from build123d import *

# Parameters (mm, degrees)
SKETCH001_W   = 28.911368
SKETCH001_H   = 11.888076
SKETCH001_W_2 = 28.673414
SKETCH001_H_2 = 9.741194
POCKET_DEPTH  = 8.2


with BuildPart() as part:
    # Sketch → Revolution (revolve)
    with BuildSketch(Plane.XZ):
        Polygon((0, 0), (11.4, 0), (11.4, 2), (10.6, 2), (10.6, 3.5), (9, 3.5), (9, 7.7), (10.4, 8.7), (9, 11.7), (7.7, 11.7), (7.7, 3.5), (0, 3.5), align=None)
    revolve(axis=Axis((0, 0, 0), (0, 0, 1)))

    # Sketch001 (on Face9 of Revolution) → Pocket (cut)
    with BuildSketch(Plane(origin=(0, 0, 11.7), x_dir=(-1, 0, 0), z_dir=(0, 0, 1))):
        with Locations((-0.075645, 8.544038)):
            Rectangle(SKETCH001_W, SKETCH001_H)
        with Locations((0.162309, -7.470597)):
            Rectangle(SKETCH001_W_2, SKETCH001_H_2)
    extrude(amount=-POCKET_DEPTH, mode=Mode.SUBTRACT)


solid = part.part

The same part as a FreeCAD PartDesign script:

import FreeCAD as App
import Part
import Sketcher

V = App.Vector
Q = App.Units.Quantity

doc = App.newDocument("Part")
body = doc.addObject("PartDesign::Body", "Body")

# Sketch on XZ plane
sketch1 = body.newObject("Sketcher::SketchObject", "Sketch")
sketch1.AttachmentSupport = (doc.getObject("XZ_Plane"), [""])
sketch1.MapMode = "FlatFace"
sketch1.addGeometry(Part.LineSegment(V(0, 0, 0), V(11.4, 0, 0)), False)
sketch1.addGeometry(Part.LineSegment(V(11.4, 0, 0), V(11.4, 2, 0)), False)
sketch1.addGeometry(Part.LineSegment(V(11.4, 2, 0), V(10.6, 2, 0)), False)
sketch1.addGeometry(Part.LineSegment(V(10.6, 2, 0), V(10.6, 3.5, 0)), False)
sketch1.addGeometry(Part.LineSegment(V(10.6, 3.5, 0), V(9, 3.5, 0)), False)
sketch1.addGeometry(Part.LineSegment(V(9, 3.5, 0), V(9, 7.7, 0)), False)
sketch1.addGeometry(Part.LineSegment(V(9, 7.7, 0), V(10.4, 8.7, 0)), False)
sketch1.addGeometry(Part.LineSegment(V(10.4, 8.7, 0), V(9, 11.7, 0)), False)
sketch1.addGeometry(Part.LineSegment(V(9, 11.7, 0), V(7.7, 11.7, 0)), False)
sketch1.addGeometry(Part.LineSegment(V(7.7, 11.7, 0), V(7.7, 3.5, 0)), False)
sketch1.addGeometry(Part.LineSegment(V(7.7, 3.5, 0), V(0, 3.5, 0)), False)
sketch1.addGeometry(Part.LineSegment(V(0, 3.5, 0), V(0, 0, 0)), False)
sketch1.addConstraint(Sketcher.Constraint("Coincident", 0, 2, 1, 1))
sketch1.addConstraint(Sketcher.Constraint("Coincident", 1, 2, 2, 1))
sketch1.addConstraint(Sketcher.Constraint("Coincident", 2, 2, 3, 1))
sketch1.addConstraint(Sketcher.Constraint("Coincident", 3, 2, 4, 1))
sketch1.addConstraint(Sketcher.Constraint("Coincident", 4, 2, 5, 1))
sketch1.addConstraint(Sketcher.Constraint("Coincident", 5, 2, 6, 1))
sketch1.addConstraint(Sketcher.Constraint("Coincident", 6, 2, 7, 1))
sketch1.addConstraint(Sketcher.Constraint("Coincident", 7, 2, 8, 1))
sketch1.addConstraint(Sketcher.Constraint("Coincident", 8, 2, 9, 1))
sketch1.addConstraint(Sketcher.Constraint("Coincident", 9, 2, 10, 1))
sketch1.addConstraint(Sketcher.Constraint("Coincident", 10, 2, 11, 1))
sketch1.addConstraint(Sketcher.Constraint("Coincident", 11, 2, 0, 1))
sketch1.addConstraint(Sketcher.Constraint("Horizontal", 0))
sketch1.addConstraint(Sketcher.Constraint("Vertical", 1))
sketch1.addConstraint(Sketcher.Constraint("Horizontal", 2))
sketch1.addConstraint(Sketcher.Constraint("Vertical", 3))
sketch1.addConstraint(Sketcher.Constraint("Horizontal", 4))
sketch1.addConstraint(Sketcher.Constraint("Vertical", 5))
sketch1.addConstraint(Sketcher.Constraint("Horizontal", 8))
sketch1.addConstraint(Sketcher.Constraint("Vertical", 9))
sketch1.addConstraint(Sketcher.Constraint("Horizontal", 10))
sketch1.addConstraint(Sketcher.Constraint("Vertical", 11))
sketch1.addConstraint(Sketcher.Constraint("Coincident", 11, 2, -1, 1))
sketch1.addConstraint(Sketcher.Constraint("Horizontal", 4, 2, 9, 2))
sketch1.addConstraint(Sketcher.Constraint("Vertical", 5, 2, 7, 2))
sketch1.addConstraint(Sketcher.Constraint("DistanceY", 1, 1, 1, 2, Q("2 mm")))
sketch1.addConstraint(Sketcher.Constraint("DistanceX", 0, 1, 0, 2, Q("11.4 mm")))
sketch1.addConstraint(Sketcher.Constraint("DistanceX", 2, 2, 2, 1, Q("0.8 mm")))
sketch1.addConstraint(Sketcher.Constraint("DistanceX", 4, 2, 4, 1, Q("1.6 mm")))
sketch1.addConstraint(Sketcher.Constraint("DistanceX", 8, 2, 8, 1, Q("1.3 mm")))
sketch1.addConstraint(Sketcher.Constraint("DistanceY", 3, 1, 3, 2, Q("1.5 mm")))
sketch1.addConstraint(Sketcher.Constraint("DistanceY", 5, 1, 5, 2, Q("4.2 mm")))
sketch1.addConstraint(Sketcher.Constraint("DistanceY", 9, 2, 9, 1, Q("8.2 mm")))
sketch1.addConstraint(Sketcher.Constraint("DistanceY", 5, 2, 6, 2, Q("1 mm")))
sketch1.addConstraint(Sketcher.Constraint("DistanceX", 6, 2, 1, 2, Q("1 mm")))
revolution = body.newObject("PartDesign::Revolution", "Revolution")
revolution.Profile = sketch1
revolution.ReferenceAxis = (sketch1, ["V_Axis"])
revolution.Angle = 360

# Sketch on XY plane
sketch2 = body.newObject("Sketcher::SketchObject", "Sketch001")
sketch2.AttachmentSupport = (doc.getObject("XY_Plane"), [""])
sketch2.MapMode = "FlatFace"
sketch2.AttachmentOffset = App.Placement(V(0, 0, 11.7), App.Rotation())
sketch2.addGeometry(Part.LineSegment(V(15, -14, 0), V(15, -3, 0)), False)
sketch2.addGeometry(Part.LineSegment(V(15, -3, 0), V(-14, -3, 0)), False)
sketch2.addGeometry(Part.LineSegment(V(-14, -3, 0), V(-14, -14, 0)), False)
sketch2.addGeometry(Part.LineSegment(V(-14, -14, 0), V(15, -14, 0)), False)
sketch2.addGeometry(Part.LineSegment(V(14, 3, 0), V(14, 12, 0)), False)
sketch2.addGeometry(Part.LineSegment(V(14, 12, 0), V(-14, 12, 0)), False)
sketch2.addGeometry(Part.LineSegment(V(-14, 12, 0), V(-14, 3, 0)), False)
sketch2.addGeometry(Part.LineSegment(V(-14, 3, 0), V(14, 3, 0)), False)
sketch2.addConstraint(Sketcher.Constraint("Coincident", 0, 2, 1, 1))
sketch2.addConstraint(Sketcher.Constraint("Coincident", 1, 2, 2, 1))
sketch2.addConstraint(Sketcher.Constraint("Coincident", 2, 2, 3, 1))
sketch2.addConstraint(Sketcher.Constraint("Coincident", 3, 2, 0, 1))
sketch2.addConstraint(Sketcher.Constraint("Coincident", 4, 2, 5, 1))
sketch2.addConstraint(Sketcher.Constraint("Coincident", 5, 2, 6, 1))
sketch2.addConstraint(Sketcher.Constraint("Coincident", 6, 2, 7, 1))
sketch2.addConstraint(Sketcher.Constraint("Coincident", 7, 2, 4, 1))
sketch2.addConstraint(Sketcher.Constraint("Vertical", 0))
sketch2.addConstraint(Sketcher.Constraint("Horizontal", 1))
sketch2.addConstraint(Sketcher.Constraint("Vertical", 2))
sketch2.addConstraint(Sketcher.Constraint("Horizontal", 3))
sketch2.addConstraint(Sketcher.Constraint("Vertical", 4))
sketch2.addConstraint(Sketcher.Constraint("Horizontal", 5))
sketch2.addConstraint(Sketcher.Constraint("Vertical", 6))
sketch2.addConstraint(Sketcher.Constraint("Horizontal", 7))
sketch2.addConstraint(Sketcher.Constraint("DistanceY", 0, 2, -1, 1, Q("2.6 mm")))
sketch2.addConstraint(Sketcher.Constraint("DistanceY", -1, 1, 6, 2, Q("2.6 mm")))
sketch2.addConstraint(Sketcher.Constraint("DistanceX", 1, 2, 1, 1, Q("28.911368 mm")))
sketch2.addConstraint(Sketcher.Constraint("DistanceX", 5, 2, 5, 1, Q("28.673414 mm")))
sketch2.addConstraint(Sketcher.Constraint("DistanceY", 0, 1, 0, 2, Q("11.888076 mm")))
sketch2.addConstraint(Sketcher.Constraint("DistanceY", 4, 1, 4, 2, Q("9.741194 mm")))
sketch2.addConstraint(Sketcher.Constraint("DistanceX", -1, 1, 0, 2, Q("14.531329 mm")))
sketch2.addConstraint(Sketcher.Constraint("DistanceX", 4, 2, 0, 2, Q("0.356931 mm")))
pocket1 = body.newObject("PartDesign::Pocket", "Pocket")
pocket1.Profile = sketch2
pocket1.Length = 8.2

doc.recompute()
